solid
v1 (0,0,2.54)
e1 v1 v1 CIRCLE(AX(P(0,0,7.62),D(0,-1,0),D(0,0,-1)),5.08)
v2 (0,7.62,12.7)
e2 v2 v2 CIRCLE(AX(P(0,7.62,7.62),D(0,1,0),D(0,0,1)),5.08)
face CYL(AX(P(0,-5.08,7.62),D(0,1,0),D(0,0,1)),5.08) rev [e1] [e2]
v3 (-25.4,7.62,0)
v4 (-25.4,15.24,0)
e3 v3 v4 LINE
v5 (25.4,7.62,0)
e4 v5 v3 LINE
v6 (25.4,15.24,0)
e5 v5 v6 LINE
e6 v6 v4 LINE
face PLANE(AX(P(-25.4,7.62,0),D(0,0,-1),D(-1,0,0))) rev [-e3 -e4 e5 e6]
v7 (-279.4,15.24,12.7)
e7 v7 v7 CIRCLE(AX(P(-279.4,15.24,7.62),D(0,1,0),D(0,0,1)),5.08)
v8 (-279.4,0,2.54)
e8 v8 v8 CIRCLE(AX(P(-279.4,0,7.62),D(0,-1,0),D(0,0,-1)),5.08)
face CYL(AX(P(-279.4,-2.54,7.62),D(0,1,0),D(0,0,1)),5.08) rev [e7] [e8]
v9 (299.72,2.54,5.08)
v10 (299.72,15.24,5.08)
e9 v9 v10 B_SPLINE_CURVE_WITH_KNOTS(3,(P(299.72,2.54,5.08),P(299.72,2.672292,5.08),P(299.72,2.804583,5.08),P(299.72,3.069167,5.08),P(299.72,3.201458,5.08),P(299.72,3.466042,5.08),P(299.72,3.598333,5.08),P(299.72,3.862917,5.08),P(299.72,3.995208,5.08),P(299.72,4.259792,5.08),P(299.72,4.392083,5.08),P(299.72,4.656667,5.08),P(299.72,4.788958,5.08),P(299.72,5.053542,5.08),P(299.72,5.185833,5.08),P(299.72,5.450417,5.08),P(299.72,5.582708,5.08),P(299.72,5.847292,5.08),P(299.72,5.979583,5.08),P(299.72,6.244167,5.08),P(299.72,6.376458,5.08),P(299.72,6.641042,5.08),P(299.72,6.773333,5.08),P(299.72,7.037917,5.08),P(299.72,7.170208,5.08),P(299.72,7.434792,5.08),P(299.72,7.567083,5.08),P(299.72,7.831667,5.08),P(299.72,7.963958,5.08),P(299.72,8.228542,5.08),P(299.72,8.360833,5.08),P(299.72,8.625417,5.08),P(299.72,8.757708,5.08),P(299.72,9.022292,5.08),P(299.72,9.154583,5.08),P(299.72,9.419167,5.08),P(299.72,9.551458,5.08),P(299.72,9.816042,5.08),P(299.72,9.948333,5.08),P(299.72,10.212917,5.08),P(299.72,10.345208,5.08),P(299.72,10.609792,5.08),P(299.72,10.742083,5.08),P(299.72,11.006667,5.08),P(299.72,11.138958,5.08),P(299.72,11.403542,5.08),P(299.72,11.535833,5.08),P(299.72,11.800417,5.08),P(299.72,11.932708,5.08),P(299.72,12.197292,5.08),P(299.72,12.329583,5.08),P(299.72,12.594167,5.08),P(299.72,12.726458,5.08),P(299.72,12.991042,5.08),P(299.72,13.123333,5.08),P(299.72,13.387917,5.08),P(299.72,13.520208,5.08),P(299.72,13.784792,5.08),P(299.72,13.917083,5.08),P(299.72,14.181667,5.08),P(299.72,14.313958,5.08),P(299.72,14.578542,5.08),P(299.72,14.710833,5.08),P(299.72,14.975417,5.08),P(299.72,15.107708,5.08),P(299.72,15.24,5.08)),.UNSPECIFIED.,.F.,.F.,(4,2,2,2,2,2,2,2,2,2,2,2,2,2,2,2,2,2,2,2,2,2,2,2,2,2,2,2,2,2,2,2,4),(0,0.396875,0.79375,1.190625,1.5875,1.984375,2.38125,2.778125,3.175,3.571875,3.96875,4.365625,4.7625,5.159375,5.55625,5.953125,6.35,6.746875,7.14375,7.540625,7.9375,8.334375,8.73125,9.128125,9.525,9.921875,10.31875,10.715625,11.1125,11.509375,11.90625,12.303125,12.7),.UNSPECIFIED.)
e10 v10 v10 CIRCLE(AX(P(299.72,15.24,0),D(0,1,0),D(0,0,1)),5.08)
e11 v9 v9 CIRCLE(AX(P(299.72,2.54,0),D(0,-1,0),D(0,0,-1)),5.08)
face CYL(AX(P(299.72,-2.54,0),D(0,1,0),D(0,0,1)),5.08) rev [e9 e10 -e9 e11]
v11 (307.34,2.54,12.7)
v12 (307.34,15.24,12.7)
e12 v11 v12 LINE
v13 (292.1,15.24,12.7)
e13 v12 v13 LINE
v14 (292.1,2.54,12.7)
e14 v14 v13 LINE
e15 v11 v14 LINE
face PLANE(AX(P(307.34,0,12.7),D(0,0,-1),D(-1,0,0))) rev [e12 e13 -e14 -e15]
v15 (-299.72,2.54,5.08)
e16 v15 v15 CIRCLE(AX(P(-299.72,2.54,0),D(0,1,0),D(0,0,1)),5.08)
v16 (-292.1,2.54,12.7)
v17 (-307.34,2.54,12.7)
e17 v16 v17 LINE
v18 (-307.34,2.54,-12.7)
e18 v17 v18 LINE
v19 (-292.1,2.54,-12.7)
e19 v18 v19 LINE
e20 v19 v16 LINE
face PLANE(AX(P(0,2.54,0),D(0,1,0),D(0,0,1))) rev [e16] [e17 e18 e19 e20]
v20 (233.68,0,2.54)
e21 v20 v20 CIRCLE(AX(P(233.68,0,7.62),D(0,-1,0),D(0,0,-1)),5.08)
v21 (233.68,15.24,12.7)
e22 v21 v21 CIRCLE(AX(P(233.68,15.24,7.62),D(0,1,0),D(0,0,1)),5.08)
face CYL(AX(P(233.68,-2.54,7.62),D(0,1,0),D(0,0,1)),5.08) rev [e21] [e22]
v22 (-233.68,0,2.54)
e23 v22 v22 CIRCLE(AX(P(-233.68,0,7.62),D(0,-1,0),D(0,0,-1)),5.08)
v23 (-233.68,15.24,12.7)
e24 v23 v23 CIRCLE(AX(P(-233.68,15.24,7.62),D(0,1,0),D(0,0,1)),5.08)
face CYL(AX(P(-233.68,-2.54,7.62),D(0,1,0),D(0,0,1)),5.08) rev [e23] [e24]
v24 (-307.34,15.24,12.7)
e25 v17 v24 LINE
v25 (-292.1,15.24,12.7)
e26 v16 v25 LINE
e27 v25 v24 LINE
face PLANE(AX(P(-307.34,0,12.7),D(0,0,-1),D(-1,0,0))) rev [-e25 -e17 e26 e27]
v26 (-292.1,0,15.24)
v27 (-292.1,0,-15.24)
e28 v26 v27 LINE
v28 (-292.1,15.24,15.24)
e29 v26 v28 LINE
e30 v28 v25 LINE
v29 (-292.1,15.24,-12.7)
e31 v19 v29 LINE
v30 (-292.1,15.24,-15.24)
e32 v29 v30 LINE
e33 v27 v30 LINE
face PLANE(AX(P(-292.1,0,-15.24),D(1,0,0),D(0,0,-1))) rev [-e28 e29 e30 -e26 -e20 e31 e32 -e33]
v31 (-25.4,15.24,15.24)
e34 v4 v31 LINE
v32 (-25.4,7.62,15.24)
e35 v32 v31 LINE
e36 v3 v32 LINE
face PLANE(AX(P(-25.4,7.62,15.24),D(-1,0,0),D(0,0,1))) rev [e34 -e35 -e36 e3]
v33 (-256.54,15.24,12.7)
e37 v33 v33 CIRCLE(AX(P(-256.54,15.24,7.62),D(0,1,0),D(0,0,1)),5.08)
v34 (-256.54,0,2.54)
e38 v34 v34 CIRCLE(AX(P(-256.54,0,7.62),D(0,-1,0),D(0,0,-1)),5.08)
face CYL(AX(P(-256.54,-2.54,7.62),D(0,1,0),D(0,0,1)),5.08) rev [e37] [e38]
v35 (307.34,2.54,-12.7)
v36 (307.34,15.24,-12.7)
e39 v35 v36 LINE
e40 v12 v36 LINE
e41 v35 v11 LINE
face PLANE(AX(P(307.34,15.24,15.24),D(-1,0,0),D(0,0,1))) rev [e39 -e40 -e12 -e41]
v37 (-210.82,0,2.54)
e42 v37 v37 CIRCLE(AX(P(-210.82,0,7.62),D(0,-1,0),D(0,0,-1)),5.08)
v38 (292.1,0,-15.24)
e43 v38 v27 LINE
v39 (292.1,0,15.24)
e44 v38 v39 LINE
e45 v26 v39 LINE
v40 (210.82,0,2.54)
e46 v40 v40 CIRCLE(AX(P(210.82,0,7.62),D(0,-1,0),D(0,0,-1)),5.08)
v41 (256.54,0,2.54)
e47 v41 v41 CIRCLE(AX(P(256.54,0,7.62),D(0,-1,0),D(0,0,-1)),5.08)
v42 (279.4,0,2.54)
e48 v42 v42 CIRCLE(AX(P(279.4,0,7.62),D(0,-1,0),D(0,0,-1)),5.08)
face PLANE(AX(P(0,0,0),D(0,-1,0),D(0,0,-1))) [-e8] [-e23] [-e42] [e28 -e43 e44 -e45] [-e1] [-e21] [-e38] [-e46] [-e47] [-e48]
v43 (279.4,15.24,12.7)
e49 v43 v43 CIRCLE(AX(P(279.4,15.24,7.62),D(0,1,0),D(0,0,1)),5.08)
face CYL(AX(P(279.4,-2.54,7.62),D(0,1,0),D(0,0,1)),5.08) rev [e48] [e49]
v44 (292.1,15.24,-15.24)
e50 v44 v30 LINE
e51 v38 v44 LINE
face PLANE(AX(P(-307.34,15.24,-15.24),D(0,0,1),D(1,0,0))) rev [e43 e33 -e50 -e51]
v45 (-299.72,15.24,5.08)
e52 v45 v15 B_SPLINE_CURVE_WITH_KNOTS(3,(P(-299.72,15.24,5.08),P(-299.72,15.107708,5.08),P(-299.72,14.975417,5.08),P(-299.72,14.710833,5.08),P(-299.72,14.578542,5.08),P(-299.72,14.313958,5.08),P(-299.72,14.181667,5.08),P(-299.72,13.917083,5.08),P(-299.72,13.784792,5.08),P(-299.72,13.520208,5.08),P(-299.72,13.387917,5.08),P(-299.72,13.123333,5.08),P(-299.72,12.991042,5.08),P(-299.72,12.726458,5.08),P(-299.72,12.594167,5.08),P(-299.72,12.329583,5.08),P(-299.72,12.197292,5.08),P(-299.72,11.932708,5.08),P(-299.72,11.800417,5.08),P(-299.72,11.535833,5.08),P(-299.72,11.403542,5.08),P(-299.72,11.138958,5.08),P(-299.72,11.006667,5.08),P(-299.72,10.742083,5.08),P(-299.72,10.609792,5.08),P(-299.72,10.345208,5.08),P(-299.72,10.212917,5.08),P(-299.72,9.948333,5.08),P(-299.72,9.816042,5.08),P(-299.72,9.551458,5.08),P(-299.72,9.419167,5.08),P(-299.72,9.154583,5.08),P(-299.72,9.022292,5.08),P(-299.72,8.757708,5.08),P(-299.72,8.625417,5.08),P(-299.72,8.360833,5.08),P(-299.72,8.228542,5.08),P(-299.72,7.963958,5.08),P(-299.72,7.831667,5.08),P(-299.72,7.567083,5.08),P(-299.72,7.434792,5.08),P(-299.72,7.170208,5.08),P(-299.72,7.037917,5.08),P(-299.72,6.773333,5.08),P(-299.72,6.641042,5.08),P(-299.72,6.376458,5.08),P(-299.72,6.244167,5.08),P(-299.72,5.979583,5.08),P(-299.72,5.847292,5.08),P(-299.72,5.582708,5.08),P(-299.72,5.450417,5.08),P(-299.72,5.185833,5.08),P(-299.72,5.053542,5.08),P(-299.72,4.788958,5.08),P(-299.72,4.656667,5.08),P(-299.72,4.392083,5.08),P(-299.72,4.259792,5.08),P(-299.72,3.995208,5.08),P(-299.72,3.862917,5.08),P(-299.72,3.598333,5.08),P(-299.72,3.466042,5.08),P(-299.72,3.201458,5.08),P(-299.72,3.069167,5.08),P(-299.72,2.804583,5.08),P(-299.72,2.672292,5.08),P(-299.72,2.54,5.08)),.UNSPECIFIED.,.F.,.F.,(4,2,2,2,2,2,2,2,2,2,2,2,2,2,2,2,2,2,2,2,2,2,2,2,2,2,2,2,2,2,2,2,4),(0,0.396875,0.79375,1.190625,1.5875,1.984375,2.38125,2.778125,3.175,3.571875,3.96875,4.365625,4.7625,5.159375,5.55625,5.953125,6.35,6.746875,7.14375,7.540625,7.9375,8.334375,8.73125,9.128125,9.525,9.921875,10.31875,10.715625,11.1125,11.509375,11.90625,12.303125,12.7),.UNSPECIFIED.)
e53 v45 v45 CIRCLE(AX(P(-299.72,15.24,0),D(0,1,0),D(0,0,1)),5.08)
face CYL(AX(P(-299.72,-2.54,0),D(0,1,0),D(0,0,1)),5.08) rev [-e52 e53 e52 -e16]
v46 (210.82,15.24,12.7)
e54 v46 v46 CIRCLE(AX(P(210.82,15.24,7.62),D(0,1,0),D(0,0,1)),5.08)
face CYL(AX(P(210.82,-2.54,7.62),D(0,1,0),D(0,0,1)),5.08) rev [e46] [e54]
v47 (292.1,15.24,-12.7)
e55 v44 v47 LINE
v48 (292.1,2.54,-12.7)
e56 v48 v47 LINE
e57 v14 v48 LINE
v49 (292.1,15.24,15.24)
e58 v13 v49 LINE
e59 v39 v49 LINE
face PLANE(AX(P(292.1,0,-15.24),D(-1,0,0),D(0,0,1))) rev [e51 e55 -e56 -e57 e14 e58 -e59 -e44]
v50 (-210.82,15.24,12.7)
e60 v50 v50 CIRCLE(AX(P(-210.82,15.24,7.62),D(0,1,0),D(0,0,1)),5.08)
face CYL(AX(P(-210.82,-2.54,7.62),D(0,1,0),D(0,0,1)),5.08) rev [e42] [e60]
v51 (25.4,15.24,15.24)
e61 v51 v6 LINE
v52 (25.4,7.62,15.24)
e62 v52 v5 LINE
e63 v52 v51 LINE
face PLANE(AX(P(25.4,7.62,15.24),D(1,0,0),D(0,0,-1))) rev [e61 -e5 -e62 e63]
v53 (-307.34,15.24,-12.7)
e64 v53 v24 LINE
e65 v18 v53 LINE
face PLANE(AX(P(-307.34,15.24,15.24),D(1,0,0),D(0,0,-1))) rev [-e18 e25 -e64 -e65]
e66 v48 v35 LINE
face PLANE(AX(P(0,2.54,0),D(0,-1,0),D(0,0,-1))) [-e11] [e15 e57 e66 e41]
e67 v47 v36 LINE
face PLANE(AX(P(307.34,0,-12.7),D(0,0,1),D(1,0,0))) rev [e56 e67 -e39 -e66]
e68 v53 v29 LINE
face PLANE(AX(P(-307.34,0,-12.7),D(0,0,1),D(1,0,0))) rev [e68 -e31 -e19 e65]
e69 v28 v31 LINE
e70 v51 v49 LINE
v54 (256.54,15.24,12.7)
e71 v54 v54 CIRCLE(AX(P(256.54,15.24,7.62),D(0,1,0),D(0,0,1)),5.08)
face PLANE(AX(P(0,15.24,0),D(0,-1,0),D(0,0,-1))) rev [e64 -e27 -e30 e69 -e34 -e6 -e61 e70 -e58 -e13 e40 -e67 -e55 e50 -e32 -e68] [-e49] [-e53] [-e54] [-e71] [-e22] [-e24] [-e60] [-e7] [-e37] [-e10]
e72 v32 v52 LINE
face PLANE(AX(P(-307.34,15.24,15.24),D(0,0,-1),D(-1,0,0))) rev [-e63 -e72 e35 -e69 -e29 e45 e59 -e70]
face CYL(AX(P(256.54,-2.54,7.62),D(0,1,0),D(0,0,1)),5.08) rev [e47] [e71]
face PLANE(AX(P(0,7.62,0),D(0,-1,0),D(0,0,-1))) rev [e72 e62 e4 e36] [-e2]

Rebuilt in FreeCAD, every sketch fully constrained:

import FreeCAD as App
import Part
import Sketcher
Q = App.Units.Quantity


def add_polygon(sketch, points):
    """Adds a closed chain of lines whose ends are joined by coincident constraints."""
    first, n = sketch.GeometryCount, len(points)
    for a, b in zip(points, points[1:] + points[:1]):
        sketch.addGeometry(Part.LineSegment(App.Vector(*a, 0), App.Vector(*b, 0)), False)
    for i in range(n):
        sketch.addConstraint(Sketcher.Constraint("Coincident", first + i, 2, first + (i + 1) % n, 1))

doc = App.newDocument("Part")
params = doc.addObject("Spreadsheet::Sheet", "Params")
for row, (alias, value) in enumerate([
    ("sketch1_width", "24.2 in"),
    ("sketch1_height", "1.2 in"),
    ("pad1_length", "0.6 in"),
    ("sketch2_width", "0.6 in"),
    ("sketch2_height", "0.1 in"),
    ("pocket1_length", "0.6 in"),
    ("sketch3_height", "1 in"),
    ("sketch3_width", "0.6 in"),
    ("pocket2_length", "0.1 in"),
    ("sketch4_diameter", "0.4 in"),
    ("pocket3_length", "0.7 in"),
    ("sketch5_width", "2 in"),
    ("sketch5_height", "0.6 in"),
    ("pocket4_length", "0.3 in"),
    ("sketch6_diameter", "0.4 in"),
    ("pocket5_length", "0.5 in"),
    ("sketch7_diameter", "0.4 in"),
    ("pocket6_length", "0.7 in"),
], start=1):
    params.set(f"A{row}", alias)
    params.set(f"B{row}", "=" + value)
    params.setAlias(f"B{row}", alias)

body = doc.addObject("PartDesign::Body", "Body")

sketch1 = body.newObject("Sketcher::SketchObject", "Sketch")
sketch1.AttachmentSupport = (doc.getObject("XZ_Plane"), [""])
sketch1.MapMode = "FlatFace"
add_polygon(sketch1, [(-307, -15), (-307, 15), (307, 15), (307, -15)])
sketch1.addConstraint([
    Sketcher.Constraint("Vertical", 0),
    Sketcher.Constraint("Horizontal", 1),
    Sketcher.Constraint("Vertical", 2),
    Sketcher.Constraint("Horizontal", 3),
    Sketcher.Constraint("Symmetric", 0, 2, 2, 2, -1, 1),
    Sketcher.Constraint("DistanceX", 1, 1, 1, 2, Q("24.2 in")),
    Sketcher.Constraint("DistanceY", 0, 1, 0, 2, Q("1.2 in")),
])
sketch1.setExpression("Constraints[9]", "Params.sketch1_width")
sketch1.setExpression("Constraints[10]", "Params.sketch1_height")
pad1 = body.newObject("PartDesign::Pad", "Pad")
pad1.Profile = sketch1
pad1.setExpression("Length", "Params.pad1_length")
pad1.Reversed = True

sketch2 = body.newObject("Sketcher::SketchObject", "Sketch001")
sketch2.AttachmentSupport = (doc.getObject("XZ_Plane"), [""])
sketch2.MapMode = "FlatFace"
sketch2.AttachmentOffset = App.Placement(App.Vector(0, 0, -0.6 * 25.4), App.Rotation())
add_polygon(sketch2, [(-307.3, -15.2), (-307.3, -12.7), (-292.1, -12.7), (-292.1, -15.2)])
add_polygon(sketch2, [(-307.3, 12.7), (-307.3, 15.2), (-292.1, 15.2), (-292.1, 12.7)])
add_polygon(sketch2, [(292.1, -15.2), (292.1, -12.7), (307.3, -12.7), (307.3, -15.2)])
add_polygon(sketch2, [(292.1, 12.7), (292.1, 15.2), (307.3, 15.2), (307.3, 12.7)])
sketch2.addConstraint([
    Sketcher.Constraint("Vertical", 0),
    Sketcher.Constraint("Horizontal", 1),
    Sketcher.Constraint("Vertical", 2),
    Sketcher.Constraint("Horizontal", 3),
    Sketcher.Constraint("Vertical", 4),
    Sketcher.Constraint("Horizontal", 5),
    Sketcher.Constraint("Vertical", 6),
    Sketcher.Constraint("Horizontal", 7),
    Sketcher.Constraint("Vertical", 8),
    Sketcher.Constraint("Horizontal", 9),
    Sketcher.Constraint("Vertical", 10),
    Sketcher.Constraint("Horizontal", 11),
    Sketcher.Constraint("Vertical", 12),
    Sketcher.Constraint("Horizontal", 13),
    Sketcher.Constraint("Vertical", 14),
    Sketcher.Constraint("Horizontal", 15),
    Sketcher.Constraint("Symmetric", 6, 2, 8, 2, -1, 1),
    Sketcher.Constraint("Symmetric", 4, 2, 10, 2, -1, 1),
    Sketcher.Constraint("Symmetric", 2, 2, 12, 2, -1, 1),
    Sketcher.Constraint("Symmetric", 0, 2, 14, 2, -1, 1),
    Sketcher.Constraint("Symmetric", 1, 2, 8, 2, -2),
    Sketcher.Constraint("Symmetric", 3, 2, 10, 2, -2),
    Sketcher.Constraint("DistanceX", 1, 1, 1, 2, Q("0.6 in")),
    Sketcher.Constraint("DistanceY", 0, 1, 0, 2, Q("0.1 in")),
    Sketcher.Constraint("DistanceY", 1, 2, 6, 2, Q("1 in")),
    Sketcher.Constraint("DistanceX", 1, 2, 8, 2, Q("23 in")),
])
sketch2.setExpression("Constraints[38]", "Params.sketch2_width")
sketch2.setExpression("Constraints[39]", "Params.sketch2_height")
pocket1 = body.newObject("PartDesign::Pocket", "Pocket")
pocket1.Profile = sketch2
pocket1.setExpression("Length", "Params.pocket1_length")
pocket1.Reversed = True

sketch3 = body.newObject("Sketcher::SketchObject", "Sketch002")
sketch3.AttachmentSupport = (doc.getObject("XZ_Plane"), [""])
sketch3.MapMode = "FlatFace"
add_polygon(sketch3, [(292, 13), (292, -13), (307, -13), (307, 13)])
add_polygon(sketch3, [(-307, 13), (-307, -13), (-292, -13), (-292, 13)])
sketch3.addConstraint([
    Sketcher.Constraint("Vertical", 0),
    Sketcher.Constraint("Horizontal", 1),
    Sketcher.Constraint("Vertical", 2),
    Sketcher.Constraint("Horizontal", 3),
    Sketcher.Constraint("Vertical", 4),
    Sketcher.Constraint("Horizontal", 5),
    Sketcher.Constraint("Vertical", 6),
    Sketcher.Constraint("Horizontal", 7),
    Sketcher.Constraint("Symmetric", 2, 2, 4, 2, -1, 1),
    Sketcher.Constraint("Symmetric", 0, 2, 6, 2, -1, 1),
    Sketcher.Constraint("Horizontal", 1, 2, 4, 2),
    Sketcher.Constraint("DistanceY", 0, 2, 0, 1, Q("1 in")),
    Sketcher.Constraint("DistanceX", 1, 1, 1, 2, Q("0.6 in")),
    Sketcher.Constraint("DistanceX", 5, 2, 0, 2, Q("23 in")),
])
sketch3.setExpression("Constraints[19]", "Params.sketch3_height")
sketch3.setExpression("Constraints[20]", "Params.sketch3_width")
pocket2 = body.newObject("PartDesign::Pocket", "Pocket001")
pocket2.Profile = sketch3
pocket2.setExpression("Length", "Params.pocket2_length")

sketch4 = body.newObject("Sketcher::SketchObject", "Sketch003")
sketch4.AttachmentSupport = (doc.getObject("XZ_Plane"), [""])
sketch4.MapMode = "FlatFace"
sketch4.AttachmentOffset = App.Placement(App.Vector(0, 0, -0.6 * 25.4), App.Rotation())
sketch4.addGeometry([
    Part.Circle(App.Vector(-300, 0, 0), App.Vector(0, 0, 1), 5),
    Part.Circle(App.Vector(300, 0, 0), App.Vector(0, 0, 1), 5),
], False)
sketch4.addConstraint([
    Sketcher.Constraint("Equal", 0, 1),
    Sketcher.Constraint("Symmetric", 0, 3, 1, 3, -1, 1),
    Sketcher.Constraint("PointOnObject", 0, 3, -1),
    Sketcher.Constraint("Diameter", 0, Q("0.4 in")),
    Sketcher.Constraint("DistanceX", 0, 3, -1, 1, Q("11.8 in")),
])
sketch4.setExpression("Constraints[3]", "Params.sketch4_diameter")
pocket3 = body.newObject("PartDesign::Pocket", "Pocket002")
pocket3.Profile = sketch4
pocket3.setExpression("Length", "Params.pocket3_length")
pocket3.Reversed = True

sketch5 = body.newObject("Sketcher::SketchObject", "Sketch004")
sketch5.AttachmentSupport = (doc.getObject("XZ_Plane"), [""])
sketch5.MapMode = "FlatFace"
sketch5.AttachmentOffset = App.Placement(App.Vector(0, 0, -0.6 * 25.4), App.Rotation())
add_polygon(sketch5, [(-25, 0), (-25, 15), (25, 15), (25, 0)])
sketch5.addConstraint([
    Sketcher.Constraint("Vertical", 0),
    Sketcher.Constraint("Horizontal", 1),
    Sketcher.Constraint("Vertical", 2),
    Sketcher.Constraint("Horizontal", 3),
    Sketcher.Constraint("Symmetric", 2, 2, 3, 2, -1, 1),
    Sketcher.Constraint("DistanceX", 1, 1, 1, 2, Q("2 in")),
    Sketcher.Constraint("DistanceY", 0, 1, 0, 2, Q("0.6 in")),
])
sketch5.setExpression("Constraints[9]", "Params.sketch5_width")
sketch5.setExpression("Constraints[10]", "Params.sketch5_height")
pocket4 = body.newObject("PartDesign::Pocket", "Pocket003")
pocket4.Profile = sketch5
pocket4.setExpression("Length", "Params.pocket4_length")
pocket4.Reversed = True

sketch6 = body.newObject("Sketcher::SketchObject", "Sketch005")
sketch6.AttachmentSupport = (doc.getObject("XZ_Plane"), [""])
sketch6.MapMode = "FlatFace"
sketch6.AttachmentOffset = App.Placement(App.Vector(0, 0, -0.3 * 25.4), App.Rotation())
sketch6.addGeometry(Part.Circle(App.Vector(0, 8, 0), App.Vector(0, 0, 1), 5), False)
sketch6.addConstraint([
    Sketcher.Constraint("PointOnObject", 0, 3, -2),
    Sketcher.Constraint("Diameter", 0, Q("0.4 in")),
    Sketcher.Constraint("DistanceY", -1, 1, 0, 3, Q("0.3 in")),
])
sketch6.setExpression("Constraints[1]", "Params.sketch6_diameter")
pocket5 = body.newObject("PartDesign::Pocket", "Pocket004")
pocket5.Profile = sketch6
pocket5.setExpression("Length", "Params.pocket5_length")
pocket5.Reversed = True

sketch7 = body.newObject("Sketcher::SketchObject", "Sketch006")
sketch7.AttachmentSupport = (doc.getObject("XZ_Plane"), [""])
sketch7.MapMode = "FlatFace"
sketch7.AttachmentOffset = App.Placement(App.Vector(0, 0, -0.6 * 25.4), App.Rotation())
sketch7.addGeometry([
    Part.Circle(App.Vector(-279, 8, 0), App.Vector(0, 0, 1), 5),
    Part.Circle(App.Vector(-257, 8, 0), App.Vector(0, 0, 1), 5),
    Part.Circle(App.Vector(-234, 8, 0), App.Vector(0, 0, 1), 5),
    Part.Circle(App.Vector(-211, 8, 0), App.Vector(0, 0, 1), 5),
    Part.Circle(App.Vector(279, 8, 0), App.Vector(0, 0, 1), 5),
    Part.Circle(App.Vector(257, 8, 0), App.Vector(0, 0, 1), 5),
    Part.Circle(App.Vector(234, 8, 0), App.Vector(0, 0, 1), 5),
    Part.Circle(App.Vector(211, 8, 0), App.Vector(0, 0, 1), 5),
], False)
sketch7.addConstraint([
    Sketcher.Constraint("Equal", 0, 1),
    Sketcher.Constraint("Equal", 1, 2),
    Sketcher.Constraint("Equal", 2, 3),
    Sketcher.Constraint("Equal", 3, 4),
    Sketcher.Constraint("Equal", 4, 5),
    Sketcher.Constraint("Equal", 5, 6),
    Sketcher.Constraint("Equal", 6, 7),
    Sketcher.Constraint("Symmetric", 0, 3, 4, 3, -2),
    Sketcher.Constraint("Symmetric", 1, 3, 5, 3, -2),
    Sketcher.Constraint("Symmetric", 2, 3, 6, 3, -2),
    Sketcher.Constraint("Symmetric", 3, 3, 7, 3, -2),
    Sketcher.Constraint("Horizontal", 0, 3, 1, 3),
    Sketcher.Constraint("Horizontal", 1, 3, 2, 3),
    Sketcher.Constraint("Horizontal", 2, 3, 3, 3),
    Sketcher.Constraint("Diameter", 0, Q("0.4 in")),
    Sketcher.Constraint("DistanceX", 0, 3, -1, 1, Q("11 in")),
    Sketcher.Constraint("DistanceY", -1, 1, 0, 3, Q("0.3 in")),
    Sketcher.Constraint("DistanceX", 1, 3, -1, 1, Q("10.1 in")),
    Sketcher.Constraint("DistanceX", 2, 3, -1, 1, Q("9.2 in")),
    Sketcher.Constraint("DistanceX", 3, 3, -1, 1, Q("8.3 in")),
])
sketch7.setExpression("Constraints[14]", "Params.sketch7_diameter")
pocket6 = body.newObject("PartDesign::Pocket", "Pocket005")
pocket6.Profile = sketch7
pocket6.setExpression("Length", "Params.pocket6_length")
pocket6.Reversed = True

doc.recompute()
